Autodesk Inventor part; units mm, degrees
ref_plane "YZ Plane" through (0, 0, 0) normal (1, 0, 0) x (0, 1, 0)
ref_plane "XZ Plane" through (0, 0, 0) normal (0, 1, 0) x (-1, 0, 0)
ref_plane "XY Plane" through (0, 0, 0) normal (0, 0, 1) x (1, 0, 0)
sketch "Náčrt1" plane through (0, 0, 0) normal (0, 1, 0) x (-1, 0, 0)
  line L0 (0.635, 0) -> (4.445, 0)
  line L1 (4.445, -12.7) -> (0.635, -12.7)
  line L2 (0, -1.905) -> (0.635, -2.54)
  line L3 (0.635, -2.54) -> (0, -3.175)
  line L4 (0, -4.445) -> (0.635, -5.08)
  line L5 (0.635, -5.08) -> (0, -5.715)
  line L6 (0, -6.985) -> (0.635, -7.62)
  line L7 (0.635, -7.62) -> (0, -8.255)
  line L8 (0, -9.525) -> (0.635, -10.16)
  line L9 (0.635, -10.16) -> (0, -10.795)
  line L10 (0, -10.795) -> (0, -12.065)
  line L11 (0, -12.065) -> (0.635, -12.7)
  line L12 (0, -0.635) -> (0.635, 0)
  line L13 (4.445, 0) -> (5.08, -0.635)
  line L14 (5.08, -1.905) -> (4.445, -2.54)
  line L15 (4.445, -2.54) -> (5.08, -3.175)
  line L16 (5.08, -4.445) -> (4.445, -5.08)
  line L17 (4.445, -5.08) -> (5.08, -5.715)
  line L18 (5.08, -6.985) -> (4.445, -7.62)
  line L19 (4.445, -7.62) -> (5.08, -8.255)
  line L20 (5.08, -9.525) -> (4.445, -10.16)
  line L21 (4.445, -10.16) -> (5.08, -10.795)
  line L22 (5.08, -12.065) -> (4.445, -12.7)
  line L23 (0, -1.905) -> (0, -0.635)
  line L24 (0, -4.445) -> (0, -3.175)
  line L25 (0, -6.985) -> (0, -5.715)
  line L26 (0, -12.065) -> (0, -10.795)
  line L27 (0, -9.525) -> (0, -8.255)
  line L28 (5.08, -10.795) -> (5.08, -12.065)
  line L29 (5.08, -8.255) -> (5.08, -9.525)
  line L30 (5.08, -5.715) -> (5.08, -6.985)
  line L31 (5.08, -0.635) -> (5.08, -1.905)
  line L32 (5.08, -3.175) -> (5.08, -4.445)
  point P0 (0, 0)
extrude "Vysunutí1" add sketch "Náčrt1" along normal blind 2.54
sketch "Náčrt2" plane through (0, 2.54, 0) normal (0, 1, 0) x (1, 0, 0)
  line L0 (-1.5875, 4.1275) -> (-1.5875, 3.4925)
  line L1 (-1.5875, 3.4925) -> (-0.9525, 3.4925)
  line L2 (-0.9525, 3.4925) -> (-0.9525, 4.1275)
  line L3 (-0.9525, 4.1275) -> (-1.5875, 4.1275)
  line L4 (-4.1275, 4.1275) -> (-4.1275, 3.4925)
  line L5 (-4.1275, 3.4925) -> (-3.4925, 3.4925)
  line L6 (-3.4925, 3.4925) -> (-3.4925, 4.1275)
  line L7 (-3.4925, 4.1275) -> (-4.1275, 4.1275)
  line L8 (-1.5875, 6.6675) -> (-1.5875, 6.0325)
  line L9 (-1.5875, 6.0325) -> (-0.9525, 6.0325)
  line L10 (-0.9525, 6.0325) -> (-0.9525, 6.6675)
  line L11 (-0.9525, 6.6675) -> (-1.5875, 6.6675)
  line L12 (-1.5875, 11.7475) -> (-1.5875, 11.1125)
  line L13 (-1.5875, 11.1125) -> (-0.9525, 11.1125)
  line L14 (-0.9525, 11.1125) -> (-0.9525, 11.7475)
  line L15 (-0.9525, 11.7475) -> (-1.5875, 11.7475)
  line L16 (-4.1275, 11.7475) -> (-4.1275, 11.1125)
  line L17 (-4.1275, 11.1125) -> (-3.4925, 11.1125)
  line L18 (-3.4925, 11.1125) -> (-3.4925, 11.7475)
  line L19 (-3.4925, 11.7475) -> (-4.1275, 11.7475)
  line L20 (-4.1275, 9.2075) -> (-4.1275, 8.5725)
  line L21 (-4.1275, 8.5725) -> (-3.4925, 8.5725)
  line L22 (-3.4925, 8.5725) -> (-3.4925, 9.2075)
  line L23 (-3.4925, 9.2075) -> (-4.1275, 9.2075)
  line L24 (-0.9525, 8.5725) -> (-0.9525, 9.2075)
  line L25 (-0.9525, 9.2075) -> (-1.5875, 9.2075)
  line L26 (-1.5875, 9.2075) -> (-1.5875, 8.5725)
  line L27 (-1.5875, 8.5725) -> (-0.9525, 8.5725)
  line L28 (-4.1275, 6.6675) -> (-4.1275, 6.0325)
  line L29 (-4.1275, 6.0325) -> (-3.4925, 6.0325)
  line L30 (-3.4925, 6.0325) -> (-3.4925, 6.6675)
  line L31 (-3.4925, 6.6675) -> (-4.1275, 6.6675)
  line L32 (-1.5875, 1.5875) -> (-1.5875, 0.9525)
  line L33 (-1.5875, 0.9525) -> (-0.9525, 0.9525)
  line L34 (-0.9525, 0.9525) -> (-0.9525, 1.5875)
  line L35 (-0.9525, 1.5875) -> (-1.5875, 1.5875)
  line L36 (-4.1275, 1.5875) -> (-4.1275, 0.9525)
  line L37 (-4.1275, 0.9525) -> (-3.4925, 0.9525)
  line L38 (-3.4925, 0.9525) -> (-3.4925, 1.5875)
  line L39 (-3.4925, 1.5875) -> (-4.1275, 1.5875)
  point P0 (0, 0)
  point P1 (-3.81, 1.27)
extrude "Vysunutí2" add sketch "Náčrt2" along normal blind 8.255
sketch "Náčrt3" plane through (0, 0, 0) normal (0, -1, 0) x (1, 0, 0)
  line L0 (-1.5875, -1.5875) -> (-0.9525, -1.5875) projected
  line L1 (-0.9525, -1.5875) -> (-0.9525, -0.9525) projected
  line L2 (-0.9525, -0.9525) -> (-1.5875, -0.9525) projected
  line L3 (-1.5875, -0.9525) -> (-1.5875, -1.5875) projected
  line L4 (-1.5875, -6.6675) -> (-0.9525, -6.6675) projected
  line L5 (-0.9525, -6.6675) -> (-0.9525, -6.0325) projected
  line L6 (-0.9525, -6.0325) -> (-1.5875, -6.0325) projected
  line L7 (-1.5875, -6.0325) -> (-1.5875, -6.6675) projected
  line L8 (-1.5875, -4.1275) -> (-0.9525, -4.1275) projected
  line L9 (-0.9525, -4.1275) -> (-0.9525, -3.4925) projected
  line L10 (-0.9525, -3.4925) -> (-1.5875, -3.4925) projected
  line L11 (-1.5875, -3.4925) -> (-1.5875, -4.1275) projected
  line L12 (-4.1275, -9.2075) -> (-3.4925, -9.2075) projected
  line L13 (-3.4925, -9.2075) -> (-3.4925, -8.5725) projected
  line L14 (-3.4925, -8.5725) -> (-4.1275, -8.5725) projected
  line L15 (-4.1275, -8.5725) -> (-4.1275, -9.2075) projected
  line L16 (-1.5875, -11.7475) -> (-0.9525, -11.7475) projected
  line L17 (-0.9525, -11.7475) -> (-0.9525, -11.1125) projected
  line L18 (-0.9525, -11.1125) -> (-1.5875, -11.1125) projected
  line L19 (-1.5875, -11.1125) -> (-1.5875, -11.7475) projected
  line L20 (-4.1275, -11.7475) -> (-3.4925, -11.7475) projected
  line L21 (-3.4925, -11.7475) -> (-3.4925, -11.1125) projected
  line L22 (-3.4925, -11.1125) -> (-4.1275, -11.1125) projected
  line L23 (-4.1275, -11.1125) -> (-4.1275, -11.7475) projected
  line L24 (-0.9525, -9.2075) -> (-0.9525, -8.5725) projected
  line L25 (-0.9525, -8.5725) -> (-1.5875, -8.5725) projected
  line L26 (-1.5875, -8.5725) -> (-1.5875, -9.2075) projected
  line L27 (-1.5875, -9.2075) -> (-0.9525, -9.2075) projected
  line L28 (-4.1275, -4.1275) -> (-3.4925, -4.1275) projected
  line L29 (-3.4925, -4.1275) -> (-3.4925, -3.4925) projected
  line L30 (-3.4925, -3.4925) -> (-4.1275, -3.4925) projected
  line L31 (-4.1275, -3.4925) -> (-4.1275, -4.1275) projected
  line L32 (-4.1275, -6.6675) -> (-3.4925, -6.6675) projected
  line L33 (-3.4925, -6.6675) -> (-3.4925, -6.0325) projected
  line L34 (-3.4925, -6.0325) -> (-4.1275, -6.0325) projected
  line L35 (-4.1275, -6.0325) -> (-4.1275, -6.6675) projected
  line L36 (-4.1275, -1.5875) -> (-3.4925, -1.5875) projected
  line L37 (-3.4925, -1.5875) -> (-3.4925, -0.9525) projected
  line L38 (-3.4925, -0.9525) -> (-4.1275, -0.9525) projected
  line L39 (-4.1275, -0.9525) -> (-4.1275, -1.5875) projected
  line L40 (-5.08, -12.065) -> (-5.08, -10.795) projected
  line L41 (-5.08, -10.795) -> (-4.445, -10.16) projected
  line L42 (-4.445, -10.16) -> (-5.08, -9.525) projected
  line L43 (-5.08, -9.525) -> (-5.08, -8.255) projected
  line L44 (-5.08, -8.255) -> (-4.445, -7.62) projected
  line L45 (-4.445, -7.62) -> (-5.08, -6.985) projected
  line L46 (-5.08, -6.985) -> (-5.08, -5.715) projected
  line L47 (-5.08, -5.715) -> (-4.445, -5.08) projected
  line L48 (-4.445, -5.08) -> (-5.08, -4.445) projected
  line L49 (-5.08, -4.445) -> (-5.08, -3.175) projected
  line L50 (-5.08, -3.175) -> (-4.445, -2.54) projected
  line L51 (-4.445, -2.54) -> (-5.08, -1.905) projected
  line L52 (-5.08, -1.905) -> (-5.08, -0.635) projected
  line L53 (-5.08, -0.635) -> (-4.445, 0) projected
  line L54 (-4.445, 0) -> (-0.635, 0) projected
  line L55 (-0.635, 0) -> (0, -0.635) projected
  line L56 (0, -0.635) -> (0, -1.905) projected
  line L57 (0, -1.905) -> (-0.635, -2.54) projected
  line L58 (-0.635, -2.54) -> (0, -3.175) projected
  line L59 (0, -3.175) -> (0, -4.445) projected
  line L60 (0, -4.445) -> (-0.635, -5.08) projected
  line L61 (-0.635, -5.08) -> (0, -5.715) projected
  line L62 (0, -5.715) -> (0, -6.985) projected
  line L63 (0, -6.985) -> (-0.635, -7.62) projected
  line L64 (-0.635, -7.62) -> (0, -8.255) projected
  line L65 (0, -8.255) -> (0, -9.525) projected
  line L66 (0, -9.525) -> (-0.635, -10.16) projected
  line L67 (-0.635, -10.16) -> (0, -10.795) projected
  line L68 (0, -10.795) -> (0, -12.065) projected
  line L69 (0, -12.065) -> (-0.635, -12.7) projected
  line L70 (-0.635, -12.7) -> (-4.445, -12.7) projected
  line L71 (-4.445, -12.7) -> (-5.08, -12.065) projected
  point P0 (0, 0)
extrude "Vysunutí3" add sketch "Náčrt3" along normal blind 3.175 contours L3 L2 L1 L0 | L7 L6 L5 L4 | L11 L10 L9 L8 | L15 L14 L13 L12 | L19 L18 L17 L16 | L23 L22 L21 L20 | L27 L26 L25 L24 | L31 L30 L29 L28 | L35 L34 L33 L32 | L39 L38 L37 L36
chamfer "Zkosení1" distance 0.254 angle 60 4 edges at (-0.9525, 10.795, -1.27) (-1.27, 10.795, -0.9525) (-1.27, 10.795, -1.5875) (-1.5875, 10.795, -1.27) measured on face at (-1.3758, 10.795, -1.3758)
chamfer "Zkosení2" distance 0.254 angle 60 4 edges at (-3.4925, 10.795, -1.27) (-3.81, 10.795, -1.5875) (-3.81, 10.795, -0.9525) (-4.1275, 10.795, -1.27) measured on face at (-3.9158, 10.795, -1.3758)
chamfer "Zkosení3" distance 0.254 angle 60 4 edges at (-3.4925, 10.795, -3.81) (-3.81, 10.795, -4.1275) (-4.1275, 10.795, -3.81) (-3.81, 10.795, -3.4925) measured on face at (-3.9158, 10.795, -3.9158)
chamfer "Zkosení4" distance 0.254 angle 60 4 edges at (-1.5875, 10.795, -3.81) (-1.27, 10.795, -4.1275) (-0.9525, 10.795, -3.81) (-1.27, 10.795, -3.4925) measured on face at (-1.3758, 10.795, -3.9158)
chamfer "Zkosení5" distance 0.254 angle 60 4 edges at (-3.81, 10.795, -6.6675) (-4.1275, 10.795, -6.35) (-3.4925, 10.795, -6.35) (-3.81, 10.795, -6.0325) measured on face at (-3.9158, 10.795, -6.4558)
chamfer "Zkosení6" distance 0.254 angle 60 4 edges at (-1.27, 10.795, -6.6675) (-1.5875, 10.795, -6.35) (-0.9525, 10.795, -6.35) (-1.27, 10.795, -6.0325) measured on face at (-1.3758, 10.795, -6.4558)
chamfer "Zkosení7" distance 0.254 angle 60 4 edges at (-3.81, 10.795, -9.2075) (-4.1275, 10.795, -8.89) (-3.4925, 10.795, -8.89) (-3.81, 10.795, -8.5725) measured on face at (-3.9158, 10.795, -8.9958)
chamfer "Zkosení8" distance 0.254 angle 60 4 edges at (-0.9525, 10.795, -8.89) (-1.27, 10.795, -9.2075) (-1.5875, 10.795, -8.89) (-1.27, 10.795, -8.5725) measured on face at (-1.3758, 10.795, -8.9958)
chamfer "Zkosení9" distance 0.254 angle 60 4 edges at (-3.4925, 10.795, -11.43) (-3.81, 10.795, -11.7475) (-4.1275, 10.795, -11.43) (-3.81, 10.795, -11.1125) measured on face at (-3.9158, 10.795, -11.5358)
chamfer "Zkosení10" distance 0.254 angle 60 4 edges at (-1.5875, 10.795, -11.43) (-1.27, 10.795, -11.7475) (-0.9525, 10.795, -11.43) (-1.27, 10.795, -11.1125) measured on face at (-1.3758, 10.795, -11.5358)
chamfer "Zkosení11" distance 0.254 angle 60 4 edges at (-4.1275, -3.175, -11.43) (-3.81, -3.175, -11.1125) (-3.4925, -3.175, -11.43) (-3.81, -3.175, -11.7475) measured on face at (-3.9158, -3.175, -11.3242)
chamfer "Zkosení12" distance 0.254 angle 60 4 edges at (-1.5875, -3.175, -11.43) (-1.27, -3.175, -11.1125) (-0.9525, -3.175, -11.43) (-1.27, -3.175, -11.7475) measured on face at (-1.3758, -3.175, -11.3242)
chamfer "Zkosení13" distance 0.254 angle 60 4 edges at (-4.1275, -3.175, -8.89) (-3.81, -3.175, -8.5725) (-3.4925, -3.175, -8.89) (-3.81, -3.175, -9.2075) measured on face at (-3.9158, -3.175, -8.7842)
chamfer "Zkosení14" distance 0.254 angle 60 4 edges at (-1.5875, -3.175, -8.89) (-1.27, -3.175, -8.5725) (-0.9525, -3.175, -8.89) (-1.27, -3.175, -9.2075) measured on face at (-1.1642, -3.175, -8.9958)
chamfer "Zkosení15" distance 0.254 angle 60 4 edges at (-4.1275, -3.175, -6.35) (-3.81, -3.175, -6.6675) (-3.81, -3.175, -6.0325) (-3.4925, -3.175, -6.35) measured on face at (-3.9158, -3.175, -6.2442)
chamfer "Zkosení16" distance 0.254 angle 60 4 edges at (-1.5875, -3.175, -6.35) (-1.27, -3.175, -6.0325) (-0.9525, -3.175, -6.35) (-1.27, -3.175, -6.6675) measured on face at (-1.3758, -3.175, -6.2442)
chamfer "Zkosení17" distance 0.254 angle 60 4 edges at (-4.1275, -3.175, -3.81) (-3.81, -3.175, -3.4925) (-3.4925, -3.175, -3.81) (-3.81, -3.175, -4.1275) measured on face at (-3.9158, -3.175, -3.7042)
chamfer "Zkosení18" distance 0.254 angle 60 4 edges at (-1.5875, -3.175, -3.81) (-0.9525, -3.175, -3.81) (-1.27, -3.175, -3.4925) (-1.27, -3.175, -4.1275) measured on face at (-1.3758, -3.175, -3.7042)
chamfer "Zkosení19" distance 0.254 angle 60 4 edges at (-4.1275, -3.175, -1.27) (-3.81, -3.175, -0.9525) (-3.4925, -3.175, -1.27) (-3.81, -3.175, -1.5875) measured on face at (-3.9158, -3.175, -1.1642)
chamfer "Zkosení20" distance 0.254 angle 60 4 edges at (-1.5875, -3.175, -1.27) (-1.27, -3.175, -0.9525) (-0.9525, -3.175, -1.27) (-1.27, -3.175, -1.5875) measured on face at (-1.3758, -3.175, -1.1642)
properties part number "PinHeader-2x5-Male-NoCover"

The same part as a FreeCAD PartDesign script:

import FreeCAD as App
import Part
import Sketcher

V = App.Vector
Q = App.Units.Quantity


def edges_at(feature, points):
    """Names of the edges that pass closest to the given points."""
    edges = feature.Shape.Edges
    near = lambda p: min(range(len(edges)), key=lambda i: edges[i].distToShape(Part.Vertex(*p))[0])
    return sorted({f"Edge{near(p) + 1}" for p in points})


def add_polygon(sketch, points):
    """Adds a closed chain of lines whose ends are joined by coincident constraints."""
    first, n = sketch.GeometryCount, len(points)
    for a, b in zip(points, points[1:] + points[:1]):
        sketch.addGeometry(Part.LineSegment(App.Vector(*a, 0), App.Vector(*b, 0)), False)
    for i in range(n):
        sketch.addConstraint(Sketcher.Constraint("Coincident", first + i, 2, first + (i + 1) % n, 1))

doc = App.newDocument("Part")
body = doc.addObject("PartDesign::Body", "Body")

sketch1 = body.newObject("Sketcher::SketchObject", "Sketch")
sketch1.AttachmentSupport = (doc.getObject("XZ_Plane"), [""])
sketch1.MapMode = "FlatFace"
add_polygon(sketch1, [(-4.445, 0), (-0.635, 0), (0, -0.635), (0, -1.905), (-0.635, -2.54), (0, -3.175), (0, -4.445), (-0.635, -5.08), (0, -5.715), (0, -6.985), (-0.635, -7.62), (0, -8.255), (0, -9.525), (-0.635, -10.16), (0, -10.795), (0, -12.065), (-0.635, -12.7), (-4.445, -12.7), (-5.08, -12.065), (-5.08, -10.795), (-4.445, -10.16), (-5.08, -9.525), (-5.08, -8.255), (-4.445, -7.62), (-5.08, -6.985), (-5.08, -5.715), (-4.445, -5.08), (-5.08, -4.445), (-5.08, -3.175), (-4.445, -2.54), (-5.08, -1.905), (-5.08, -0.635)])
sketch1.addConstraint([
    Sketcher.Constraint("Horizontal", 0),
    Sketcher.Constraint("Vertical", 2),
    Sketcher.Constraint("Vertical", 5),
    Sketcher.Constraint("Vertical", 8),
    Sketcher.Constraint("Vertical", 11),
    Sketcher.Constraint("Vertical", 14),
    Sketcher.Constraint("Horizontal", 16),
    Sketcher.Constraint("Vertical", 18),
    Sketcher.Constraint("Vertical", 21),
    Sketcher.Constraint("Vertical", 24),
    Sketcher.Constraint("Vertical", 27),
    Sketcher.Constraint("Vertical", 30),
    Sketcher.Constraint("PointOnObject", 0, 2, -1),
    Sketcher.Constraint("PointOnObject", 1, 2, -2),
    Sketcher.Constraint("PointOnObject", 4, 2, -2),
    Sketcher.Constraint("PointOnObject", 7, 2, -2),
    Sketcher.Constraint("PointOnObject", 10, 2, -2),
    Sketcher.Constraint("PointOnObject", 13, 2, -2),
    Sketcher.Constraint("Perpendicular", 1, 3),
    Sketcher.Constraint("Perpendicular", 3, 4),
    Sketcher.Constraint("Perpendicular", 4, 6),
    Sketcher.Constraint("Perpendicular", 6, 7),
    Sketcher.Constraint("Perpendicular", 7, 9),
    Sketcher.Constraint("Perpendicular", 9, 10),
    Sketcher.Constraint("Perpendicular", 10, 12),
    Sketcher.Constraint("Perpendicular", 12, 13),
    Sketcher.Constraint("Perpendicular", 13, 15),
    Sketcher.Constraint("Perpendicular", 15, 17),
    Sketcher.Constraint("Perpendicular", 17, 19),
    Sketcher.Constraint("Perpendicular", 19, 20),
    Sketcher.Constraint("Perpendicular", 20, 22),
    Sketcher.Constraint("Perpendicular", 22, 23),
    Sketcher.Constraint("Perpendicular", 23, 25),
    Sketcher.Constraint("Perpendicular", 25, 26),
    Sketcher.Constraint("Perpendicular", 26, 28),
    Sketcher.Constraint("Perpendicular", 28, 29),
    Sketcher.Constraint("Perpendicular", 29, 31),
    Sketcher.Constraint("Horizontal", 14, 2, 17, 2),
    Sketcher.Constraint("Horizontal", 13, 2, 18, 2),
    Sketcher.Constraint("Horizontal", 12, 2, 19, 2),
    Sketcher.Constraint("Horizontal", 11, 2, 20, 2),
    Sketcher.Constraint("Horizontal", 10, 2, 21, 2),
    Sketcher.Constraint("Horizontal", 9, 2, 22, 2),
    Sketcher.Constraint("Horizontal", 8, 2, 23, 2),
    Sketcher.Constraint("Horizontal", 7, 2, 24, 2),
    Sketcher.Constraint("Horizontal", 6, 2, 25, 2),
    Sketcher.Constraint("Horizontal", 5, 2, 26, 2),
    Sketcher.Constraint("Horizontal", 4, 2, 27, 2),
    Sketcher.Constraint("Horizontal", 3, 2, 28, 2),
    Sketcher.Constraint("Horizontal", 2, 2, 29, 2),
    Sketcher.Constraint("Horizontal", 1, 2, 30, 2),
    Sketcher.Constraint("Vertical", 0, 2, 3, 2),
    Sketcher.Constraint("Vertical", 3, 2, 6, 2),
    Sketcher.Constraint("Vertical", 6, 2, 9, 2),
    Sketcher.Constraint("Vertical", 9, 2, 12, 2),
    Sketcher.Constraint("Vertical", 12, 2, 15, 2),
    Sketcher.Constraint("Vertical", 16, 2, 19, 2),
    Sketcher.Constraint("Equal", 2, 5),
    Sketcher.Constraint("Equal", 5, 8),
    Sketcher.Constraint("Equal", 8, 11),
    Sketcher.Constraint("Equal", 11, 14),
    Sketcher.Constraint("DistanceX", 0, 1, 0, 2, Q("0.15 in")),
    Sketcher.Constraint("DistanceY", 2, 2, 2, 1, Q("0.05 in")),
    Sketcher.Constraint("DistanceY", 3, 2, -1, 1, Q("0.1 in")),
])
pad1 = body.newObject("PartDesign::Pad", "Pad")
pad1.Profile = sketch1
pad1.Length = Q("0.1 in")
pad1.Reversed = True

sketch2 = body.newObject("Sketcher::SketchObject", "Sketch001")
sketch2.AttachmentSupport = (doc.getObject("XZ_Plane"), [""])
sketch2.MapMode = "FlatFace"
sketch2.AttachmentOffset = App.Placement(V(0, 0, -0.1 * 25.4), App.Rotation())
add_polygon(sketch2, [(-0.9525, -4.1275), (-1.5875, -4.1275), (-1.5875, -3.4925), (-0.9525, -3.4925)])
add_polygon(sketch2, [(-3.4925, -4.1275), (-4.1275, -4.1275), (-4.1275, -3.4925), (-3.4925, -3.4925)])
add_polygon(sketch2, [(-0.9525, -6.6675), (-1.5875, -6.6675), (-1.5875, -6.0325), (-0.9525, -6.0325)])
add_polygon(sketch2, [(-0.9525, -11.7475), (-1.5875, -11.7475), (-1.5875, -11.1125), (-0.9525, -11.1125)])
add_polygon(sketch2, [(-3.4925, -11.7475), (-4.1275, -11.7475), (-4.1275, -11.1125), (-3.4925, -11.1125)])
add_polygon(sketch2, [(-3.4925, -9.2075), (-4.1275, -9.2075), (-4.1275, -8.5725), (-3.4925, -8.5725)])
add_polygon(sketch2, [(-1.5875, -8.5725), (-0.9525, -8.5725), (-0.9525, -9.2075), (-1.5875, -9.2075)])
add_polygon(sketch2, [(-3.4925, -6.6675), (-4.1275, -6.6675), (-4.1275, -6.0325), (-3.4925, -6.0325)])
add_polygon(sketch2, [(-0.9525, -1.5875), (-1.5875, -1.5875), (-1.5875, -0.9525), (-0.9525, -0.9525)])
add_polygon(sketch2, [(-3.4925, -1.5875), (-4.1275, -1.5875), (-4.1275, -0.9525), (-3.4925, -0.9525)])
sketch2.addConstraint([
    Sketcher.Constraint("Horizontal", 0),
    Sketcher.Constraint("Vertical", 1),
    Sketcher.Constraint("Horizontal", 2),
    Sketcher.Constraint("Vertical", 3),
    Sketcher.Constraint("Horizontal", 4),
    Sketcher.Constraint("Vertical", 5),
    Sketcher.Constraint("Horizontal", 6),
    Sketcher.Constraint("Vertical", 7),
    Sketcher.Constraint("Horizontal", 8),
    Sketcher.Constraint("Vertical", 9),
    Sketcher.Constraint("Horizontal", 10),
    Sketcher.Constraint("Vertical", 11),
    Sketcher.Constraint("Horizontal", 12),
    Sketcher.Constraint("Vertical", 13),
    Sketcher.Constraint("Horizontal", 14),
    Sketcher.Constraint("Vertical", 15),
    Sketcher.Constraint("Horizontal", 16),
    Sketcher.Constraint("Vertical", 17),
    Sketcher.Constraint("Horizontal", 18),
    Sketcher.Constraint("Vertical", 19),
    Sketcher.Constraint("Horizontal", 20),
    Sketcher.Constraint("Vertical", 21),
    Sketcher.Constraint("Horizontal", 22),
    Sketcher.Constraint("Vertical", 23),
    Sketcher.Constraint("Horizontal", 24),
    Sketcher.Constraint("Vertical", 25),
    Sketcher.Constraint("Horizontal", 26),
    Sketcher.Constraint("Vertical", 27),
    Sketcher.Constraint("Horizontal", 28),
    Sketcher.Constraint("Vertical", 29),
    Sketcher.Constraint("Horizontal", 30),
    Sketcher.Constraint("Vertical", 31),
    Sketcher.Constraint("Horizontal", 32),
    Sketcher.Constraint("Vertical", 33),
    Sketcher.Constraint("Horizontal", 34),
    Sketcher.Constraint("Vertical", 35),
    Sketcher.Constraint("Horizontal", 36),
    Sketcher.Constraint("Vertical", 37),
    Sketcher.Constraint("Horizontal", 38),
    Sketcher.Constraint("Vertical", 39),
    Sketcher.Constraint("Horizontal", 3, 2, 4, 2),
    Sketcher.Constraint("Horizontal", 2, 2, 5, 2),
    Sketcher.Constraint("Horizontal", 15, 2, 16, 2),
    Sketcher.Constraint("Horizontal", 14, 2, 17, 2),
    Sketcher.Constraint("Horizontal", 22, 2, 24, 2),
    Sketcher.Constraint("Horizontal", 23, 2, 25, 2),
    Sketcher.Constraint("Horizontal", 11, 2, 28, 2),
    Sketcher.Constraint("Horizontal", 10, 2, 29, 2),
    Sketcher.Constraint("Horizontal", 35, 2, 36, 2),
    Sketcher.Constraint("Horizontal", 34, 2, 37, 2),
    Sketcher.Constraint("Vertical", 1, 2, 8, 2),
    Sketcher.Constraint("Vertical", 3, 2, 10, 2),
    Sketcher.Constraint("Vertical", 9, 2, 12, 2),
    Sketcher.Constraint("Vertical", 11, 2, 14, 2),
    Sketcher.Constraint("Vertical", 5, 2, 16, 2),
    Sketcher.Constraint("Vertical", 7, 2, 18, 2),
    Sketcher.Constraint("Vertical", 17, 2, 20, 2),
    Sketcher.Constraint("Vertical", 19, 2, 22, 2),
    Sketcher.Constraint("Vertical", 15, 2, 24, 2),
    Sketcher.Constraint("Vertical", 13, 2, 26, 2),
    Sketcher.Constraint("Vertical", 21, 2, 28, 2),
    Sketcher.Constraint("Vertical", 23, 2, 30, 2),
    Sketcher.Constraint("Vertical", 27, 2, 32, 2),
    Sketcher.Constraint("Vertical", 25, 2, 34, 2),
    Sketcher.Constraint("Vertical", 29, 2, 36, 2),
    Sketcher.Constraint("Vertical", 31, 2, 38, 2),
    Sketcher.Constraint("Equal", 2, 4),
    Sketcher.Constraint("Equal", 38, 1),
    Sketcher.Constraint("Equal", 7, 9),
    Sketcher.Constraint("Equal", 11, 13),
    Sketcher.Constraint("Equal", 19, 21),
    Sketcher.Constraint("Equal", 31, 33),
    Sketcher.Constraint("DistanceX", 4, 2, 0, 2, Q("0.1 in")),
    Sketcher.Constraint("DistanceY", 8, 2, 0, 2, Q("0.1 in")),
    Sketcher.Constraint("DistanceY", 12, 2, 8, 2, Q("0.2 in")),
    Sketcher.Constraint("DistanceY", 16, 2, 20, 2, Q("0.1 in")),
    Sketcher.Constraint("DistanceY", 0, 2, 32, 2, Q("0.1 in")),
    Sketcher.Constraint("DistanceX", 0, 2, 0, 1, Q("0.025 in")),
    Sketcher.Constraint("DistanceX", 0, 2, -1, 1, Q("0.0625 in")),
    Sketcher.Constraint("DistanceY", 13, 2, -1, 1, Q("0.4375 in")),
])
pad2 = body.newObject("PartDesign::Pad", "Pad001")
pad2.Profile = sketch2
pad2.Length = Q("0.325 in")
pad2.Reversed = True

sketch3 = body.newObject("Sketcher::SketchObject", "Sketch002")
sketch3.AttachmentSupport = (doc.getObject("XZ_Plane"), [""])
sketch3.MapMode = "FlatFace"
add_polygon(sketch3, [(-1.5875, -0.9525), (-1.5875, -1.5875), (-0.9525, -1.5875), (-0.9525, -0.9525)])
add_polygon(sketch3, [(-1.5875, -6.0325), (-1.5875, -6.6675), (-0.9525, -6.6675), (-0.9525, -6.0325)])
add_polygon(sketch3, [(-1.5875, -3.4925), (-1.5875, -4.1275), (-0.9525, -4.1275), (-0.9525, -3.4925)])
add_polygon(sketch3, [(-4.1275, -8.5725), (-4.1275, -9.2075), (-3.4925, -9.2075), (-3.4925, -8.5725)])
add_polygon(sketch3, [(-1.5875, -11.1125), (-1.5875, -11.7475), (-0.9525, -11.7475), (-0.9525, -11.1125)])
add_polygon(sketch3, [(-4.1275, -11.1125), (-4.1275, -11.7475), (-3.4925, -11.7475), (-3.4925, -11.1125)])
add_polygon(sketch3, [(-1.5875, -9.2075), (-0.9525, -9.2075), (-0.9525, -8.5725), (-1.5875, -8.5725)])
add_polygon(sketch3, [(-4.1275, -3.4925), (-4.1275, -4.1275), (-3.4925, -4.1275), (-3.4925, -3.4925)])
add_polygon(sketch3, [(-4.1275, -6.0325), (-4.1275, -6.6675), (-3.4925, -6.6675), (-3.4925, -6.0325)])
add_polygon(sketch3, [(-4.1275, -0.9525), (-4.1275, -1.5875), (-3.4925, -1.5875), (-3.4925, -0.9525)])
sketch3.addConstraint([
    Sketcher.Constraint("Vertical", 0),
    Sketcher.Constraint("Horizontal", 1),
    Sketcher.Constraint("Vertical", 2),
    Sketcher.Constraint("Horizontal", 3),
    Sketcher.Constraint("Vertical", 4),
    Sketcher.Constraint("Horizontal", 5),
    Sketcher.Constraint("Vertical", 6),
    Sketcher.Constraint("Horizontal", 7),
    Sketcher.Constraint("Vertical", 8),
    Sketcher.Constraint("Horizontal", 9),
    Sketcher.Constraint("Vertical", 10),
    Sketcher.Constraint("Horizontal", 11),
    Sketcher.Constraint("Vertical", 12),
    Sketcher.Constraint("Horizontal", 13),
    Sketcher.Constraint("Vertical", 14),
    Sketcher.Constraint("Horizontal", 15),
    Sketcher.Constraint("Vertical", 16),
    Sketcher.Constraint("Horizontal", 17),
    Sketcher.Constraint("Vertical", 18),
    Sketcher.Constraint("Horizontal", 19),
    Sketcher.Constraint("Vertical", 20),
    Sketcher.Constraint("Horizontal", 21),
    Sketcher.Constraint("Vertical", 22),
    Sketcher.Constraint("Horizontal", 23),
    Sketcher.Constraint("Horizontal", 24),
    Sketcher.Constraint("Vertical", 25),
    Sketcher.Constraint("Horizontal", 26),
    Sketcher.Constraint("Vertical", 27),
    Sketcher.Constraint("Vertical", 28),
    Sketcher.Constraint("Horizontal", 29),
    Sketcher.Constraint("Vertical", 30),
    Sketcher.Constraint("Horizontal", 31),
    Sketcher.Constraint("Vertical", 32),
    Sketcher.Constraint("Horizontal", 33),
    Sketcher.Constraint("Vertical", 34),
    Sketcher.Constraint("Horizontal", 35),
    Sketcher.Constraint("Vertical", 36),
    Sketcher.Constraint("Horizontal", 37),
    Sketcher.Constraint("Vertical", 38),
    Sketcher.Constraint("Horizontal", 39),
    Sketcher.Constraint("Horizontal", 17, 2, 20, 2),
    Sketcher.Constraint("Horizontal", 19, 2, 22, 2),
    Sketcher.Constraint("Horizontal", 13, 2, 24, 2),
    Sketcher.Constraint("Horizontal", 15, 2, 25, 2),
    Sketcher.Constraint("Horizontal", 9, 2, 28, 2),
    Sketcher.Constraint("Horizontal", 11, 2, 30, 2),
    Sketcher.Constraint("Horizontal", 5, 2, 32, 2),
    Sketcher.Constraint("Horizontal", 7, 2, 34, 2),
    Sketcher.Constraint("Horizontal", 1, 2, 36, 2),
    Sketcher.Constraint("Horizontal", 3, 2, 38, 2),
    Sketcher.Constraint("Vertical", 3, 2, 4, 2),
    Sketcher.Constraint("Vertical", 2, 2, 5, 2),
    Sketcher.Constraint("Vertical", 7, 2, 8, 2),
    Sketcher.Constraint("Vertical", 6, 2, 9, 2),
    Sketcher.Constraint("Vertical", 11, 2, 16, 2),
    Sketcher.Constraint("Vertical", 10, 2, 17, 2),
    Sketcher.Constraint("Vertical", 15, 2, 20, 2),
    Sketcher.Constraint("Vertical", 14, 2, 21, 2),
    Sketcher.Constraint("Vertical", 18, 2, 24, 2),
    Sketcher.Constraint("Vertical", 19, 2, 26, 2),
    Sketcher.Constraint("Vertical", 23, 2, 28, 2),
    Sketcher.Constraint("Vertical", 22, 2, 29, 2),
    Sketcher.Constraint("Vertical", 31, 2, 32, 2),
    Sketcher.Constraint("Vertical", 30, 2, 33, 2),
    Sketcher.Constraint("Vertical", 35, 2, 36, 2),
    Sketcher.Constraint("Vertical", 34, 2, 37, 2),
    Sketcher.Constraint("Equal", 11, 13),
    Sketcher.Constraint("Equal", 39, 0),
    Sketcher.Constraint("Equal", 2, 4),
    Sketcher.Constraint("Equal", 6, 8),
    Sketcher.Constraint("Equal", 10, 12),
    Sketcher.Constraint("Equal", 14, 16),
    Sketcher.Constraint("DistanceY", 4, 2, 0, 2, Q("0.2 in")),
    Sketcher.Constraint("DistanceY", 4, 2, 8, 2, Q("0.1 in")),
    Sketcher.Constraint("DistanceX", 12, 2, 4, 2, Q("0.1 in")),
    Sketcher.Constraint("DistanceY", 12, 2, 4, 2, Q("0.1 in")),
    Sketcher.Constraint("DistanceY", 16, 2, 13, 2, Q("0.1 in")),
    Sketcher.Constraint("DistanceX", 1, 1, 1, 2, Q("0.025 in")),
    Sketcher.Constraint("DistanceX", 0, 2, -1, 1, Q("0.0625 in")),
    Sketcher.Constraint("DistanceY", 0, 2, -1, 1, Q("0.0625 in")),
])
pad3 = body.newObject("PartDesign::Pad", "Pad002")
pad3.Profile = sketch3
pad3.Length = Q("0.125 in")
doc.recompute()

chamfer = body.newObject("PartDesign::Chamfer", "Chamfer")
chamfer.Base = (pad3, edges_at(pad3, [
    (-0.953, 10.795, -1.27),
    (-1.27, 10.795, -0.953),
    (-1.27, 10.795, -1.587),
    (-1.587, 10.795, -1.27),
]))
chamfer.ChamferType = "Distance and Angle"
chamfer.Size = Q("0.01 in")
chamfer.Angle = 60
chamfer.FlipDirection = True
doc.recompute()

chamfer2 = body.newObject("PartDesign::Chamfer", "Chamfer001")
chamfer2.Base = (chamfer, edges_at(chamfer, [
    (-3.493, 10.795, -1.27),
    (-3.81, 10.795, -1.587),
    (-3.81, 10.795, -0.953),
    (-4.128, 10.795, -1.27),
]))
chamfer2.ChamferType = "Distance and Angle"
chamfer2.Size = Q("0.01 in")
chamfer2.Angle = 60
chamfer2.FlipDirection = True
doc.recompute()

chamfer3 = body.newObject("PartDesign::Chamfer", "Chamfer002")
chamfer3.Base = (chamfer2, edges_at(chamfer2, [
    (-3.493, 10.795, -3.81),
    (-3.81, 10.795, -4.128),
    (-4.128, 10.795, -3.81),
    (-3.81, 10.795, -3.493),
]))
chamfer3.ChamferType = "Distance and Angle"
chamfer3.Size = Q("0.01 in")
chamfer3.Angle = 60
chamfer3.FlipDirection = True
doc.recompute()

chamfer4 = body.newObject("PartDesign::Chamfer", "Chamfer003")
chamfer4.Base = (chamfer3, edges_at(chamfer3, [
    (-1.587, 10.795, -3.81),
    (-1.27, 10.795, -4.128),
    (-0.953, 10.795, -3.81),
    (-1.27, 10.795, -3.493),
]))
chamfer4.ChamferType = "Distance and Angle"
chamfer4.Size = Q("0.01 in")
chamfer4.Angle = 60
chamfer4.FlipDirection = True
doc.recompute()

chamfer5 = body.newObject("PartDesign::Chamfer", "Chamfer004")
chamfer5.Base = (chamfer4, edges_at(chamfer4, [
    (-3.81, 10.795, -6.668),
    (-4.128, 10.795, -6.35),
    (-3.493, 10.795, -6.35),
    (-3.81, 10.795, -6.032),
]))
chamfer5.ChamferType = "Distance and Angle"
chamfer5.Size = Q("0.01 in")
chamfer5.Angle = 60
chamfer5.FlipDirection = True
doc.recompute()

chamfer6 = body.newObject("PartDesign::Chamfer", "Chamfer005")
chamfer6.Base = (chamfer5, edges_at(chamfer5, [
    (-1.27, 10.795, -6.668),
    (-1.587, 10.795, -6.35),
    (-0.953, 10.795, -6.35),
    (-1.27, 10.795, -6.032),
]))
chamfer6.ChamferType = "Distance and Angle"
chamfer6.Size = Q("0.01 in")
chamfer6.Angle = 60
chamfer6.FlipDirection = True
doc.recompute()

chamfer7 = body.newObject("PartDesign::Chamfer", "Chamfer006")
chamfer7.Base = (chamfer6, edges_at(chamfer6, [
    (-3.81, 10.795, -9.207),
    (-4.128, 10.795, -8.89),
    (-3.493, 10.795, -8.89),
    (-3.81, 10.795, -8.572),
]))
chamfer7.ChamferType = "Distance and Angle"
chamfer7.Size = Q("0.01 in")
chamfer7.Angle = 60
chamfer7.FlipDirection = True
doc.recompute()

chamfer8 = body.newObject("PartDesign::Chamfer", "Chamfer007")
chamfer8.Base = (chamfer7, edges_at(chamfer7, [
    (-0.953, 10.795, -8.89),
    (-1.27, 10.795, -9.207),
    (-1.587, 10.795, -8.89),
    (-1.27, 10.795, -8.572),
]))
chamfer8.ChamferType = "Distance and Angle"
chamfer8.Size = Q("0.01 in")
chamfer8.Angle = 60
chamfer8.FlipDirection = True
doc.recompute()

chamfer9 = body.newObject("PartDesign::Chamfer", "Chamfer008")
chamfer9.Base = (chamfer8, edges_at(chamfer8, [
    (-3.493, 10.795, -11.43),
    (-3.81, 10.795, -11.748),
    (-4.128, 10.795, -11.43),
    (-3.81, 10.795, -11.113),
]))
chamfer9.ChamferType = "Distance and Angle"
chamfer9.Size = Q("0.01 in")
chamfer9.Angle = 60
chamfer9.FlipDirection = True
doc.recompute()

chamfer10 = body.newObject("PartDesign::Chamfer", "Chamfer009")
chamfer10.Base = (chamfer9, edges_at(chamfer9, [
    (-1.587, 10.795, -11.43),
    (-1.27, 10.795, -11.748),
    (-0.953, 10.795, -11.43),
    (-1.27, 10.795, -11.113),
]))
chamfer10.ChamferType = "Distance and Angle"
chamfer10.Size = Q("0.01 in")
chamfer10.Angle = 60
chamfer10.FlipDirection = True
doc.recompute()

chamfer11 = body.newObject("PartDesign::Chamfer", "Chamfer010")
chamfer11.Base = (chamfer10, edges_at(chamfer10, [
    (-4.128, -3.175, -11.43),
    (-3.81, -3.175, -11.113),
    (-3.493, -3.175, -11.43),
    (-3.81, -3.175, -11.748),
]))
chamfer11.ChamferType = "Distance and Angle"
chamfer11.Size = Q("0.01 in")
chamfer11.Angle = 60
chamfer11.FlipDirection = True
doc.recompute()

chamfer12 = body.newObject("PartDesign::Chamfer", "Chamfer011")
chamfer12.Base = (chamfer11, edges_at(chamfer11, [
    (-1.587, -3.175, -11.43),
    (-1.27, -3.175, -11.113),
    (-0.953, -3.175, -11.43),
    (-1.27, -3.175, -11.748),
]))
chamfer12.ChamferType = "Distance and Angle"
chamfer12.Size = Q("0.01 in")
chamfer12.Angle = 60
chamfer12.FlipDirection = True
doc.recompute()

chamfer13 = body.newObject("PartDesign::Chamfer", "Chamfer012")
chamfer13.Base = (chamfer12, edges_at(chamfer12, [
    (-4.128, -3.175, -8.89),
    (-3.81, -3.175, -8.572),
    (-3.493, -3.175, -8.89),
    (-3.81, -3.175, -9.207),
]))
chamfer13.ChamferType = "Distance and Angle"
chamfer13.Size = Q("0.01 in")
chamfer13.Angle = 60
chamfer13.FlipDirection = True
doc.recompute()

chamfer14 = body.newObject("PartDesign::Chamfer", "Chamfer013")
chamfer14.Base = (chamfer13, edges_at(chamfer13, [
    (-1.587, -3.175, -8.89),
    (-1.27, -3.175, -8.572),
    (-0.953, -3.175, -8.89),
    (-1.27, -3.175, -9.207),
]))
chamfer14.ChamferType = "Distance and Angle"
chamfer14.Size = Q("0.01 in")
chamfer14.Angle = 60
chamfer14.FlipDirection = True
doc.recompute()

chamfer15 = body.newObject("PartDesign::Chamfer", "Chamfer014")
chamfer15.Base = (chamfer14, edges_at(chamfer14, [
    (-4.128, -3.175, -6.35),
    (-3.81, -3.175, -6.668),
    (-3.81, -3.175, -6.032),
    (-3.493, -3.175, -6.35),
]))
chamfer15.ChamferType = "Distance and Angle"
chamfer15.Size = Q("0.01 in")
chamfer15.Angle = 60
chamfer15.FlipDirection = True
doc.recompute()

chamfer16 = body.newObject("PartDesign::Chamfer", "Chamfer015")
chamfer16.Base = (chamfer15, edges_at(chamfer15, [
    (-1.587, -3.175, -6.35),
    (-1.27, -3.175, -6.032),
    (-0.953, -3.175, -6.35),
    (-1.27, -3.175, -6.668),
]))
chamfer16.ChamferType = "Distance and Angle"
chamfer16.Size = Q("0.01 in")
chamfer16.Angle = 60
chamfer16.FlipDirection = True
doc.recompute()

chamfer17 = body.newObject("PartDesign::Chamfer", "Chamfer016")
chamfer17.Base = (chamfer16, edges_at(chamfer16, [
    (-4.128, -3.175, -3.81),
    (-3.81, -3.175, -3.493),
    (-3.493, -3.175, -3.81),
    (-3.81, -3.175, -4.128),
]))
chamfer17.ChamferType = "Distance and Angle"
chamfer17.Size = Q("0.01 in")
chamfer17.Angle = 60
chamfer17.FlipDirection = True
doc.recompute()

chamfer18 = body.newObject("PartDesign::Chamfer", "Chamfer017")
chamfer18.Base = (chamfer17, edges_at(chamfer17, [
    (-1.587, -3.175, -3.81),
    (-0.953, -3.175, -3.81),
    (-1.27, -3.175, -3.493),
    (-1.27, -3.175, -4.128),
]))
chamfer18.ChamferType = "Distance and Angle"
chamfer18.Size = Q("0.01 in")
chamfer18.Angle = 60
chamfer18.FlipDirection = True
doc.recompute()

chamfer19 = body.newObject("PartDesign::Chamfer", "Chamfer018")
chamfer19.Base = (chamfer18, edges_at(chamfer18, [
    (-4.128, -3.175, -1.27),
    (-3.81, -3.175, -0.953),
    (-3.493, -3.175, -1.27),
    (-3.81, -3.175, -1.587),
]))
chamfer19.ChamferType = "Distance and Angle"
chamfer19.Size = Q("0.01 in")
chamfer19.Angle = 60
chamfer19.FlipDirection = True
doc.recompute()

chamfer20 = body.newObject("PartDesign::Chamfer", "Chamfer019")
chamfer20.Base = (chamfer19, edges_at(chamfer19, [
    (-1.587, -3.175, -1.27),
    (-1.27, -3.175, -0.953),
    (-0.953, -3.175, -1.27),
    (-1.27, -3.175, -1.587),
]))
chamfer20.ChamferType = "Distance and Angle"
chamfer20.Size = Q("0.01 in")
chamfer20.Angle = 60
chamfer20.FlipDirection = True

doc.recompute()
